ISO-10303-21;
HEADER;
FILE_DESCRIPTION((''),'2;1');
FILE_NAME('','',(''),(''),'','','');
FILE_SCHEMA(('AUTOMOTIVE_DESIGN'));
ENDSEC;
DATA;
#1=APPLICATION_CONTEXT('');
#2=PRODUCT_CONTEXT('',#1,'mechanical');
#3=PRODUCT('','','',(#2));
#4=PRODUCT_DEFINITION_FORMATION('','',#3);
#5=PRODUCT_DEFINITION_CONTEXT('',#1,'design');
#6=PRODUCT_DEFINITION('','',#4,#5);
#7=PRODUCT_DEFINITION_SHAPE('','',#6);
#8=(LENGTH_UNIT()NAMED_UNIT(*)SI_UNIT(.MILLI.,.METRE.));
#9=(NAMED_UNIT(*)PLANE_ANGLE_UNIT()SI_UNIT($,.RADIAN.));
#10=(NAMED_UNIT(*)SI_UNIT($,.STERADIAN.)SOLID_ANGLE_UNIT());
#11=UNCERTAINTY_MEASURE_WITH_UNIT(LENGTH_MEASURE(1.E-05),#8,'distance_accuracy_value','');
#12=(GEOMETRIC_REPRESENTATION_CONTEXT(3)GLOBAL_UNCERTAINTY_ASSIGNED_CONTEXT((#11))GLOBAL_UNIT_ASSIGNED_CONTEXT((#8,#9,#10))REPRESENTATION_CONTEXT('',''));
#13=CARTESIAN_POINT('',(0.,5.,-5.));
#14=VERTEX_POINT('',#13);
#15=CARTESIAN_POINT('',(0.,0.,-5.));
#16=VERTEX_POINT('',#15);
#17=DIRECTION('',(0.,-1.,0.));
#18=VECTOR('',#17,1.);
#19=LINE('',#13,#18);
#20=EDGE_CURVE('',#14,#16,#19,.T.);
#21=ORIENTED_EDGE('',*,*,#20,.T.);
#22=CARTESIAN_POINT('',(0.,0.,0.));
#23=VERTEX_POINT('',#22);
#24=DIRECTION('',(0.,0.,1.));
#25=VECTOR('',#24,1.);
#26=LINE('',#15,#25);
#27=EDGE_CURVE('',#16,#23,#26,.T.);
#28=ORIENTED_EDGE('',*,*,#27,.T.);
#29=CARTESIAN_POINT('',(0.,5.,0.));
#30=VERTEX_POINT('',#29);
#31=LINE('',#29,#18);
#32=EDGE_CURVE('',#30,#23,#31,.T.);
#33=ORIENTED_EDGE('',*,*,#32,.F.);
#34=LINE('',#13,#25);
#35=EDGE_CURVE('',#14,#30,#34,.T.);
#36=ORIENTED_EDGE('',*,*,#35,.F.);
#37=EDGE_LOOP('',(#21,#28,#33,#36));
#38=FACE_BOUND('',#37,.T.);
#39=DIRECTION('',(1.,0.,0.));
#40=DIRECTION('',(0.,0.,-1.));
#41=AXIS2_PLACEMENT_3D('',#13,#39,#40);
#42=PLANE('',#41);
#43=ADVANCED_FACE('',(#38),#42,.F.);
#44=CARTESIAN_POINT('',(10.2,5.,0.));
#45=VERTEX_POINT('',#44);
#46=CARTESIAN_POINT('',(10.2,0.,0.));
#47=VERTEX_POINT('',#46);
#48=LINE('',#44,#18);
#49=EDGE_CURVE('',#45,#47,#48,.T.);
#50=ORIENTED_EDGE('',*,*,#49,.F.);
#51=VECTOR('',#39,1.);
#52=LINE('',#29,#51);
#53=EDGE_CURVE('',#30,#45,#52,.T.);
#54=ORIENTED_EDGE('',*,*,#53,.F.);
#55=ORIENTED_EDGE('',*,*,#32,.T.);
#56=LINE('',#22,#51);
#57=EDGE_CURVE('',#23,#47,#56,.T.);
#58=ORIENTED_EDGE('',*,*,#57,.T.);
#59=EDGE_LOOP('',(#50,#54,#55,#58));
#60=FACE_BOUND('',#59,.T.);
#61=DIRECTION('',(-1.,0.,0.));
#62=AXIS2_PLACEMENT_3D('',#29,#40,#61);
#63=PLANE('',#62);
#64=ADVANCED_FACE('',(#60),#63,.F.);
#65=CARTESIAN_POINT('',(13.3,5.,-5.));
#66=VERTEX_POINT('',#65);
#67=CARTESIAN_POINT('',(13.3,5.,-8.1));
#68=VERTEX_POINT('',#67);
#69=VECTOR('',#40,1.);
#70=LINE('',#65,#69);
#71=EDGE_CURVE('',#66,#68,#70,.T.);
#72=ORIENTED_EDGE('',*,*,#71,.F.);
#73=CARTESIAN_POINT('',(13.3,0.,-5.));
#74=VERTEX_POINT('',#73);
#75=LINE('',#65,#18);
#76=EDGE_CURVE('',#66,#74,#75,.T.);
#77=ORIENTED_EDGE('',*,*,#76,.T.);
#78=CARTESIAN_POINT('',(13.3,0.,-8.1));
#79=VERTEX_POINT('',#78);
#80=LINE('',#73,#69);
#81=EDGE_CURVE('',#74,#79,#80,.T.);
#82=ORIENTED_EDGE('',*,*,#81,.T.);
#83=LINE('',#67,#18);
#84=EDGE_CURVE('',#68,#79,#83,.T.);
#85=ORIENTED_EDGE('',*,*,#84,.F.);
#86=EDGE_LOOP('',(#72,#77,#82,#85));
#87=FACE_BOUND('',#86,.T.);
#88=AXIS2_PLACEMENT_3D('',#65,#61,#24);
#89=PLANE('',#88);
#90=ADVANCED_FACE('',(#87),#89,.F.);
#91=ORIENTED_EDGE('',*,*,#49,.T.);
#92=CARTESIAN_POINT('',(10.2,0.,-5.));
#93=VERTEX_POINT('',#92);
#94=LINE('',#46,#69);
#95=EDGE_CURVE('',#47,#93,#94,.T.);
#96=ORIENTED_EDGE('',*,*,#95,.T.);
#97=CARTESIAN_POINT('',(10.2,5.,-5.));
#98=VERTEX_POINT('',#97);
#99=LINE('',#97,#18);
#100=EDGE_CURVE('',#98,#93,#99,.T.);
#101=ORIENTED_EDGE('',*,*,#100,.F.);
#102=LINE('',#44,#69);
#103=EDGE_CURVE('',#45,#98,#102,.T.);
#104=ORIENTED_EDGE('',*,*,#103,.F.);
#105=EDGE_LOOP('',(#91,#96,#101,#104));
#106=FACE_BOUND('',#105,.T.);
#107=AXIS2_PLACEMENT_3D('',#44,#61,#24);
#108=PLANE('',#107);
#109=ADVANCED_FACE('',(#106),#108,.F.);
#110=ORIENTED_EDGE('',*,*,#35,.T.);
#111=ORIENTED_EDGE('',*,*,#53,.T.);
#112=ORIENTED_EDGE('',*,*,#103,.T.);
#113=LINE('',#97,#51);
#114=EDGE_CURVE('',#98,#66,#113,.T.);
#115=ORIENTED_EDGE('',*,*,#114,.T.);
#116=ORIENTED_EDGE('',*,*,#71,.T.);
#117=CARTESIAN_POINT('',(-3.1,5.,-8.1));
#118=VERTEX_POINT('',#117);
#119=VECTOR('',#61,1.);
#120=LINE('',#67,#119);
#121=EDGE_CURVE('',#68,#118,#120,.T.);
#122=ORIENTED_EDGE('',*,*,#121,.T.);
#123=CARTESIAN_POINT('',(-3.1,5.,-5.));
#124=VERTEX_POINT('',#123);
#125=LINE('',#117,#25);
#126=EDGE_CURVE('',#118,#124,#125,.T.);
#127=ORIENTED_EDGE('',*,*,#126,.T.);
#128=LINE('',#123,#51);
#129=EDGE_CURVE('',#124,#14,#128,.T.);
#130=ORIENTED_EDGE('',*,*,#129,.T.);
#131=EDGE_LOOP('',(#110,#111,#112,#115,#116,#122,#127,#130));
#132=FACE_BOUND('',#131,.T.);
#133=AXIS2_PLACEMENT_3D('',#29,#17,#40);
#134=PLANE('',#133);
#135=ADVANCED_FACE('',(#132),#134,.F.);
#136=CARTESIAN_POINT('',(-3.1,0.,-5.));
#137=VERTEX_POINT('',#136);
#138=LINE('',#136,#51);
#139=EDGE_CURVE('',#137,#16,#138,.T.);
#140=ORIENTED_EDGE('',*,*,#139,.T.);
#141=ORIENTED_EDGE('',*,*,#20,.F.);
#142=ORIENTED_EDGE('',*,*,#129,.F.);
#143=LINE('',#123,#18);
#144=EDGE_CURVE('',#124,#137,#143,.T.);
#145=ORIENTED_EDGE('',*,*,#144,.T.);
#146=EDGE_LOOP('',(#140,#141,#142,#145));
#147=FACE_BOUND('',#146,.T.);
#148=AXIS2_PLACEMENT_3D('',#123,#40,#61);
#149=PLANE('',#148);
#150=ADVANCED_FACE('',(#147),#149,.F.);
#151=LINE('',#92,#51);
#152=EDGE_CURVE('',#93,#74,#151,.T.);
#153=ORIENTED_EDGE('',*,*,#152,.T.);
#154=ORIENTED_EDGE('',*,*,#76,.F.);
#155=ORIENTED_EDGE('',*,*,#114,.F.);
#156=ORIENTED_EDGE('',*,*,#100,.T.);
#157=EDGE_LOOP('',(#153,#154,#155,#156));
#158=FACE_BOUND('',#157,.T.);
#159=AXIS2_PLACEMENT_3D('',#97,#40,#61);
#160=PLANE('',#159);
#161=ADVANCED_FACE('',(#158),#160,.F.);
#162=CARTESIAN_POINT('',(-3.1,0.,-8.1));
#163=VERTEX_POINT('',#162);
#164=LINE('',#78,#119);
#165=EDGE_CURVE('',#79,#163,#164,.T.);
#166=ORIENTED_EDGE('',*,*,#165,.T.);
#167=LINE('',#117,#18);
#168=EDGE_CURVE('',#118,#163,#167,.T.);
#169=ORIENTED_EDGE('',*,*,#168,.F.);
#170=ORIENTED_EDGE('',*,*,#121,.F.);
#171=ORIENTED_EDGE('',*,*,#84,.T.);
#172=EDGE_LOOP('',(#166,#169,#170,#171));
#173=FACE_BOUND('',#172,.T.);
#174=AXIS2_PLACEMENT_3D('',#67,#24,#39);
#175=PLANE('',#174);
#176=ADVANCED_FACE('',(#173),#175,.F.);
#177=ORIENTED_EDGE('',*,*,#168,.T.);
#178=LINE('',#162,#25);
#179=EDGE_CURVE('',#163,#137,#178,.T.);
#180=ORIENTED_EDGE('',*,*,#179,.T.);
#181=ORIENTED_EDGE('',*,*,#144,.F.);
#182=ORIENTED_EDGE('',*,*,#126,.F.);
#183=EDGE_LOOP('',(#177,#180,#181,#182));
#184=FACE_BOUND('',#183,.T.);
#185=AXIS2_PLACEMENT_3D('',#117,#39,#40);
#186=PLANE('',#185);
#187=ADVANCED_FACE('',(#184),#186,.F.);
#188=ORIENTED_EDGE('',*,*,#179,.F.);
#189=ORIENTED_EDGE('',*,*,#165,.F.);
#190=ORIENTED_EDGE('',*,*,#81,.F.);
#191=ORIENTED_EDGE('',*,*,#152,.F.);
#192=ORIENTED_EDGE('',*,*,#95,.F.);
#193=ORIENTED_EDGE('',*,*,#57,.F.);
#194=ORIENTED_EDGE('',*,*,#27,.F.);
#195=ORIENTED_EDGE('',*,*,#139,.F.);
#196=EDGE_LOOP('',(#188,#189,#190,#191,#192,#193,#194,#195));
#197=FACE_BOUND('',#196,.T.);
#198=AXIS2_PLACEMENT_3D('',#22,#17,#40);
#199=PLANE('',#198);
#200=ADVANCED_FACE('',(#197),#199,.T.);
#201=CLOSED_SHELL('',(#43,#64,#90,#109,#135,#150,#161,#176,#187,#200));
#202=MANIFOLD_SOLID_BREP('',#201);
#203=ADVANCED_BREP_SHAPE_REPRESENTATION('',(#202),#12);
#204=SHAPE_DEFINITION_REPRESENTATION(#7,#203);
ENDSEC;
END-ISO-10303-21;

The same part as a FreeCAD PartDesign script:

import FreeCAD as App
import Part
import Sketcher
from FreeCAD import Vector
Q = App.Units.Quantity

doc = App.newDocument("Part")
body = doc.addObject("PartDesign::Body", "Body")

# Sketch on XZ plane
sketch1 = body.newObject("Sketcher::SketchObject", "Sketch")
sketch1.AttachmentSupport = (doc.getObject("XZ_Plane"), [""])
sketch1.MapMode = "FlatFace"
sketch1.addGeometry([
    Part.LineSegment(Vector(0, -5, 0), Vector(0, 0, 0)),  # 0
    Part.LineSegment(Vector(0, 0, 0), Vector(10.2, 0, 0)),  # 1
    Part.LineSegment(Vector(10.2, 0, 0), Vector(10.2, -5, 0)),  # 2
    Part.LineSegment(Vector(10.2, -5, 0), Vector(13.3, -5, 0)),  # 3
    Part.LineSegment(Vector(13.3, -5, 0), Vector(13.3, -8.1, 0)),  # 4
    Part.LineSegment(Vector(13.3, -8.1, 0), Vector(-3.1, -8.1, 0)),  # 5
    Part.LineSegment(Vector(-3.1, -8.1, 0), Vector(-3.1, -5, 0)),  # 6
    Part.LineSegment(Vector(-3.1, -5, 0), Vector(0, -5, 0)),  # 7
], False)
sketch1.addConstraint([
    Sketcher.Constraint("Coincident", 0, 2, 1, 1),
    Sketcher.Constraint("Coincident", 1, 2, 2, 1),
    Sketcher.Constraint("Coincident", 2, 2, 3, 1),
    Sketcher.Constraint("Coincident", 3, 2, 4, 1),
    Sketcher.Constraint("Coincident", 4, 2, 5, 1),
    Sketcher.Constraint("Coincident", 5, 2, 6, 1),
    Sketcher.Constraint("Coincident", 6, 2, 7, 1),
    Sketcher.Constraint("Coincident", 7, 2, 0, 1),
    Sketcher.Constraint("Vertical", 0),
    Sketcher.Constraint("Horizontal", 1),
    Sketcher.Constraint("Vertical", 2),
    Sketcher.Constraint("Horizontal", 3),
    Sketcher.Constraint("Vertical", 4),
    Sketcher.Constraint("Horizontal", 5),
    Sketcher.Constraint("Vertical", 6),
    Sketcher.Constraint("Horizontal", 7),
    Sketcher.Constraint("Coincident", 0, 2, -1, 1),
    Sketcher.Constraint("Horizontal", 3, 2, 6, 2),
    Sketcher.Constraint("Equal", 3, 7),
    Sketcher.Constraint("Equal", 7, 4),
    Sketcher.Constraint("DistanceY", 0, 1, 0, 2, Q("5 mm")),
    Sketcher.Constraint("DistanceX", 1, 1, 1, 2, Q("10.2 mm")),
    Sketcher.Constraint("DistanceX", 3, 1, 3, 2, Q("3.1 mm")),
])
pad1 = body.newObject("PartDesign::Pad", "Pad")
pad1.Profile = sketch1
pad1.Length = 5
pad1.Reversed = True

doc.recompute()
